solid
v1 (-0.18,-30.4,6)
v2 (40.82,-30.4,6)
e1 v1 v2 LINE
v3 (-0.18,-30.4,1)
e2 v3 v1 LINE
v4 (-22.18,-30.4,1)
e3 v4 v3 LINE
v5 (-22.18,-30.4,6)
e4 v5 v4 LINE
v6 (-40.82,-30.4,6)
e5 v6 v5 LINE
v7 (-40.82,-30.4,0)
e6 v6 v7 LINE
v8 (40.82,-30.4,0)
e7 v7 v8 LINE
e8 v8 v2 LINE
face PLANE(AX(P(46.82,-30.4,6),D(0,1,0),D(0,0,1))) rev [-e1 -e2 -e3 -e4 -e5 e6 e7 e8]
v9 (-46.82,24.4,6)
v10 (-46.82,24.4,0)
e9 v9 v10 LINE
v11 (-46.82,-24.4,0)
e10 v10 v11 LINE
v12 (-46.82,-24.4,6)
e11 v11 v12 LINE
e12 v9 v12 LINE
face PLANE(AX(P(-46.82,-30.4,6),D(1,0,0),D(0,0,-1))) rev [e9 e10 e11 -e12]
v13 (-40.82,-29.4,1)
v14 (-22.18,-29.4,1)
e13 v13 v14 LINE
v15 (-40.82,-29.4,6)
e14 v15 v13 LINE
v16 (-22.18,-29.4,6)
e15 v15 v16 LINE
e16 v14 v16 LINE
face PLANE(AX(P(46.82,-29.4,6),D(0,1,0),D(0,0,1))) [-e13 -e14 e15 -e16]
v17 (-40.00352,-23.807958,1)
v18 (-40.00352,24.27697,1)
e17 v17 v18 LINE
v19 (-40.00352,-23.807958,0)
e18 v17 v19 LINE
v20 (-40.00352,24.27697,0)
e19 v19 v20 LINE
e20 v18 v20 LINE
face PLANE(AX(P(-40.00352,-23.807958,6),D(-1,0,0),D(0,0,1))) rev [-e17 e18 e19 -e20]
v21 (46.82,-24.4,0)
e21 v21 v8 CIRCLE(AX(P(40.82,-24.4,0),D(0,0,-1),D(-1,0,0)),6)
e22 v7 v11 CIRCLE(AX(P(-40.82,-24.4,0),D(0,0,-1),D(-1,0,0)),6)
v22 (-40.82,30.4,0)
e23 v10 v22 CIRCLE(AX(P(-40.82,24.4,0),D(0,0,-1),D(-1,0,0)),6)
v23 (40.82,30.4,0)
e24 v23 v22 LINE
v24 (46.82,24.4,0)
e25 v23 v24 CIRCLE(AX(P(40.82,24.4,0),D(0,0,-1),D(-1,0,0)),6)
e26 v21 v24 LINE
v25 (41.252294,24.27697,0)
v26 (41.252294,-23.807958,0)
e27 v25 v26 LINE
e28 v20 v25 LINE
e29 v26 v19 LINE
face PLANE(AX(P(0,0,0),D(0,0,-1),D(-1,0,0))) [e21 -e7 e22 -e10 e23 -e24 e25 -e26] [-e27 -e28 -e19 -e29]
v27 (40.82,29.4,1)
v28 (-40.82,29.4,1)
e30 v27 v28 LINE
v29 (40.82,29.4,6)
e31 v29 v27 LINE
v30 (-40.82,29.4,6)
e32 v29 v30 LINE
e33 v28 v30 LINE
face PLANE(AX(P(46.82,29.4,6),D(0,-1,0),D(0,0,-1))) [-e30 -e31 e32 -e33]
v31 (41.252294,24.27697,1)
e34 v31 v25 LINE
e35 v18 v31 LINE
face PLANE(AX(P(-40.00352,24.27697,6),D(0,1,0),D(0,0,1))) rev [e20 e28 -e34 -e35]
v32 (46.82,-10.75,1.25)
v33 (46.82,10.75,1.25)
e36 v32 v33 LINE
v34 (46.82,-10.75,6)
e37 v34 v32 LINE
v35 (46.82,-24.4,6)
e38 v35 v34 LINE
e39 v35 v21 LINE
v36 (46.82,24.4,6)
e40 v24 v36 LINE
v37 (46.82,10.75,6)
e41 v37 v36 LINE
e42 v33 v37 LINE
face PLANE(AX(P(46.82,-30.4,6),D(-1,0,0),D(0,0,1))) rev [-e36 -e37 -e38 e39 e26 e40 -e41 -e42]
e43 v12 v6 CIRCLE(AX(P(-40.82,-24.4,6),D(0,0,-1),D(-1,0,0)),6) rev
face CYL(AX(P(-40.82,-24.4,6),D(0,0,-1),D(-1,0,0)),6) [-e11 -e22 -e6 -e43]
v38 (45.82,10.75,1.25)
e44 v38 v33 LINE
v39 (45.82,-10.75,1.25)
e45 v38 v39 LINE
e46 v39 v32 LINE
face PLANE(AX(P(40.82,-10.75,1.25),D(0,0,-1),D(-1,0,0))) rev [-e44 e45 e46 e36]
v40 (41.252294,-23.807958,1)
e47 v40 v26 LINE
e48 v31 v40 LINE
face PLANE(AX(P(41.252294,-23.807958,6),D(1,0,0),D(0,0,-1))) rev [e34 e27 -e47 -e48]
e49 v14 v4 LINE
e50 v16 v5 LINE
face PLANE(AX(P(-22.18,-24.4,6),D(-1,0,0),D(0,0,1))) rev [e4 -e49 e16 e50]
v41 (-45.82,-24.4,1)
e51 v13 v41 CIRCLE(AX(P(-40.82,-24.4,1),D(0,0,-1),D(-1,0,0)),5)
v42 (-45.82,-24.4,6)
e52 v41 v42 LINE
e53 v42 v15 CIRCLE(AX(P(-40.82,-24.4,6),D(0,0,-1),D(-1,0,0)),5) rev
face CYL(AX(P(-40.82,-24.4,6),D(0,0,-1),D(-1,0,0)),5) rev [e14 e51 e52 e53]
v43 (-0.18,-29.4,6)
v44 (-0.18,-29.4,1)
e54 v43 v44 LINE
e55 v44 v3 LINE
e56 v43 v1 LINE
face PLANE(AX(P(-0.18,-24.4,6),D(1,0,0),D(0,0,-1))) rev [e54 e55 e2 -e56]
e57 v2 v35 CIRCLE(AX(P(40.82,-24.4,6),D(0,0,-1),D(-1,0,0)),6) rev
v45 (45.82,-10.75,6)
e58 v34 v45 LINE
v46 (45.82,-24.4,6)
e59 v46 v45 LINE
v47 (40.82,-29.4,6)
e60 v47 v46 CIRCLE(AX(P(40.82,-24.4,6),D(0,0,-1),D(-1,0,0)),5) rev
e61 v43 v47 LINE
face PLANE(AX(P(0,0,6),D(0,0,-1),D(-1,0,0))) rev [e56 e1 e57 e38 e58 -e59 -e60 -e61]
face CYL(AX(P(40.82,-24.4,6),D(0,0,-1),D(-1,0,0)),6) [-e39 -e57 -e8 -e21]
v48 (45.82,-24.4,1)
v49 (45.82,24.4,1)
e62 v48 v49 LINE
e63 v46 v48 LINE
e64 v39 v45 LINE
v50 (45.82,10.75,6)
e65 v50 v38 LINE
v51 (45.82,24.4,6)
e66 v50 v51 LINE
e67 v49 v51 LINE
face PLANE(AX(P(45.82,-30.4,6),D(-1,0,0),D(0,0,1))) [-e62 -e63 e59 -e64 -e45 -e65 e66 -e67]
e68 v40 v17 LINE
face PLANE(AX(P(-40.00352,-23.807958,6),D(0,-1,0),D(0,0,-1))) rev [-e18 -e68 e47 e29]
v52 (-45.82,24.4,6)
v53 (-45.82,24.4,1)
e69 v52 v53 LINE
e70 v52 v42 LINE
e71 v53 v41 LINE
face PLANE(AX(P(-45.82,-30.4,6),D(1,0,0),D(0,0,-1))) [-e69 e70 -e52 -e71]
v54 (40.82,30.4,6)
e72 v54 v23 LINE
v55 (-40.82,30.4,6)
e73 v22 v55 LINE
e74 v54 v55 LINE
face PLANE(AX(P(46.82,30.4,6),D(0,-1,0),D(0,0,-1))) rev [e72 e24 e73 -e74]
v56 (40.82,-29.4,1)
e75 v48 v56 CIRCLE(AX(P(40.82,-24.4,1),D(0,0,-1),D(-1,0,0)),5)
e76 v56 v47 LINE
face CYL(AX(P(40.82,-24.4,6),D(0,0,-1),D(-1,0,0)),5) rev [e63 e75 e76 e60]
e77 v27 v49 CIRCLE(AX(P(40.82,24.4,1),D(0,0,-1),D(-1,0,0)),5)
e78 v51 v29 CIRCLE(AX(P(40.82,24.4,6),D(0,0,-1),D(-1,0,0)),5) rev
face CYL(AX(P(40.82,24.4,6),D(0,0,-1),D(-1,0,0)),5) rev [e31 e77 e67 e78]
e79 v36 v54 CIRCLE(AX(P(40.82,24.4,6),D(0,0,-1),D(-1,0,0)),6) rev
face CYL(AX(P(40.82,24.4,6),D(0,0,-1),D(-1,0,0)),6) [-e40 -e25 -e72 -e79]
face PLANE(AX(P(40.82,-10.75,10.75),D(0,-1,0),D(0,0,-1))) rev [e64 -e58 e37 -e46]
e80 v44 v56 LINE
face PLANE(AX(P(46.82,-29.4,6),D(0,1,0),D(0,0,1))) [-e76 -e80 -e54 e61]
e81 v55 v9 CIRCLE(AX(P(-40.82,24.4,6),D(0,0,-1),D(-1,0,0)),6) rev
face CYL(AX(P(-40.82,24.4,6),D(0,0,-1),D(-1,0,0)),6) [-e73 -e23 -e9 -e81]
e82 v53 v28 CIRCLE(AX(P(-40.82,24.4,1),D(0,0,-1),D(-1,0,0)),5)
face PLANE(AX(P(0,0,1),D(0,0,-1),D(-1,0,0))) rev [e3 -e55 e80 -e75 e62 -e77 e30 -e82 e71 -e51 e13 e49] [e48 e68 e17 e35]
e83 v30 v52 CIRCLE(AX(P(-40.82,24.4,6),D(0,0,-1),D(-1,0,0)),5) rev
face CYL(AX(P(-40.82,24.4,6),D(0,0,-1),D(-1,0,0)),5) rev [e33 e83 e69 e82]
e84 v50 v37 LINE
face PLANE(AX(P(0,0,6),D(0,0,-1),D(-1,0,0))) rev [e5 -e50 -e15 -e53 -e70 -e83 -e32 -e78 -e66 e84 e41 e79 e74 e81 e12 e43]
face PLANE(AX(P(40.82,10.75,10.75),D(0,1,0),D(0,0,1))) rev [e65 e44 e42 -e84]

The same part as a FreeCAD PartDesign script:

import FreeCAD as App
import Part
import Sketcher

V = App.Vector
Q = App.Units.Quantity


def edges_at(feature, points):
    """Names of the edges that pass closest to the given points."""
    edges = feature.Shape.Edges
    near = lambda p: min(range(len(edges)), key=lambda i: edges[i].distToShape(Part.Vertex(*p))[0])
    return sorted({f"Edge{near(p) + 1}" for p in points})


def faces_at(feature, points):
    """Names of the faces that lie closest to the given points."""
    faces = feature.Shape.Faces
    near = lambda p: min(range(len(faces)), key=lambda i: faces[i].distToShape(Part.Vertex(*p))[0])
    return sorted({f"Face{near(p) + 1}" for p in points})

doc = App.newDocument("Part")
params = doc.addObject("Spreadsheet::Sheet", "Params")
for row, (alias, value) in enumerate([
    ("sketch1_height", "60.8 mm"),
    ("sketch1_width", "93.64 mm"),
    ("pad1_length", "6 mm"),
    ("fillet_radius", "6 mm"),
    ("thickness_wall", "1 mm"),
    ("sketch2_width", "21.5 mm"),
    ("sketch2_height", "9.5 mm"),
    ("pocket1_length", "6 mm"),
    ("sketch3_width", "22 mm"),
    ("sketch3_height", "5 mm"),
    ("pocket2_length", "6 mm"),
    ("pocket3_length", "6 mm"),
], start=1):
    params.set(f"A{row}", alias)
    params.set(f"B{row}", "=" + value)
    params.setAlias(f"B{row}", alias)

body = doc.addObject("PartDesign::Body", "Body")

# Sketch on XY plane
sketch1 = body.newObject("Sketcher::SketchObject", "Sketch")
sketch1.AttachmentSupport = (doc.getObject("XY_Plane"), [""])
sketch1.MapMode = "FlatFace"
sketch1.addGeometry([
    Part.LineSegment(V(-46.82, -30.4, 0), V(46.82, -30.4, 0)),
    Part.LineSegment(V(46.82, -30.4, 0), V(46.82, 30.4, 0)),
    Part.LineSegment(V(46.82, 30.4, 0), V(-46.82, 30.4, 0)),
    Part.LineSegment(V(-46.82, 30.4, 0), V(-46.82, -30.4, 0)),
], False)
sketch1.addConstraint([
    Sketcher.Constraint("Coincident", 0, 2, 1, 1),
    Sketcher.Constraint("Coincident", 1, 2, 2, 1),
    Sketcher.Constraint("Coincident", 2, 2, 3, 1),
    Sketcher.Constraint("Coincident", 3, 2, 0, 1),
    Sketcher.Constraint("Horizontal", 0),
    Sketcher.Constraint("Vertical", 1),
    Sketcher.Constraint("Horizontal", 2),
    Sketcher.Constraint("Vertical", 3),
    Sketcher.Constraint("Symmetric", 0, 2, 2, 2, -1, 1),
    Sketcher.Constraint("DistanceY", 1, 1, 1, 2, Q("60.8 mm")),
    Sketcher.Constraint("DistanceX", 0, 1, 0, 2, Q("93.64 mm")),
])
sketch1.setExpression("Constraints[9]", "Params.sketch1_height")
sketch1.setExpression("Constraints[10]", "Params.sketch1_width")
pad1 = body.newObject("PartDesign::Pad", "Pad")
pad1.Profile = sketch1
pad1.setExpression("Length", "Params.pad1_length")
doc.recompute()

fillet = body.newObject("PartDesign::Fillet", "Fillet")
fillet.Base = (pad1, edges_at(pad1, [
    (46.82, 30.4, 3),
    (46.82, -30.4, 3),
    (-46.82, -30.4, 3),
    (-46.82, 30.4, 3),
]))
fillet.setExpression("Radius", "Params.fillet_radius")
doc.recompute()

thickness = body.newObject("PartDesign::Thickness", "Thickness")
thickness.Base = (fillet, faces_at(fillet, [(0, 0, 6)]))
thickness.setExpression("Value", "Params.thickness_wall")
thickness.Reversed = True
thickness.Join = "Intersection"

# Sketch on YZ plane
sketch2 = body.newObject("Sketcher::SketchObject", "Sketch001")
sketch2.AttachmentSupport = (doc.getObject("YZ_Plane"), [""])
sketch2.MapMode = "FlatFace"
sketch2.AttachmentOffset = App.Placement(V(0, 0, 46.82), App.Rotation())
sketch2.addGeometry([
    Part.LineSegment(V(-10.75, 10.75, 0), V(-10.75, 1.25, 0)),
    Part.LineSegment(V(-10.75, 1.25, 0), V(10.75, 1.25, 0)),
    Part.LineSegment(V(10.75, 1.25, 0), V(10.75, 10.75, 0)),
    Part.LineSegment(V(10.75, 10.75, 0), V(-10.75, 10.75, 0)),
], False)
sketch2.addConstraint([
    Sketcher.Constraint("Coincident", 0, 2, 1, 1),
    Sketcher.Constraint("Coincident", 1, 2, 2, 1),
    Sketcher.Constraint("Coincident", 2, 2, 3, 1),
    Sketcher.Constraint("Coincident", 3, 2, 0, 1),
    Sketcher.Constraint("Vertical", 0),
    Sketcher.Constraint("Horizontal", 1),
    Sketcher.Constraint("Vertical", 2),
    Sketcher.Constraint("Horizontal", 3),
    Sketcher.Constraint("DistanceX", 1, 1, 1, 2, Q("21.5 mm")),
    Sketcher.Constraint("DistanceY", 0, 2, 0, 1, Q("9.5 mm")),
    Sketcher.Constraint("DistanceX", 0, 2, -1, 1, Q("10.75 mm")),
    Sketcher.Constraint("DistanceY", -1, 1, 0, 2, Q("1.25 mm")),
])
sketch2.setExpression("Constraints[8]", "Params.sketch2_width")
sketch2.setExpression("Constraints[9]", "Params.sketch2_height")
pocket1 = body.newObject("PartDesign::Pocket", "Pocket")
pocket1.Profile = sketch2
pocket1.setExpression("Length", "Params.pocket1_length")

# Sketch on XZ plane
sketch3 = body.newObject("Sketcher::SketchObject", "Sketch002")
sketch3.AttachmentSupport = (doc.getObject("XZ_Plane"), [""])
sketch3.MapMode = "FlatFace"
sketch3.AttachmentOffset = App.Placement(V(0, 0, 30.4), App.Rotation())
sketch3.addGeometry([
    Part.LineSegment(V(-22.18, 6, 0), V(-22.18, 1, 0)),
    Part.LineSegment(V(-22.18, 1, 0), V(-0.18, 1, 0)),
    Part.LineSegment(V(-0.18, 1, 0), V(-0.18, 6, 0)),
    Part.LineSegment(V(-0.18, 6, 0), V(-22.18, 6, 0)),
], False)
sketch3.addConstraint([
    Sketcher.Constraint("Coincident", 0, 2, 1, 1),
    Sketcher.Constraint("Coincident", 1, 2, 2, 1),
    Sketcher.Constraint("Coincident", 2, 2, 3, 1),
    Sketcher.Constraint("Coincident", 3, 2, 0, 1),
    Sketcher.Constraint("Vertical", 0),
    Sketcher.Constraint("Horizontal", 1),
    Sketcher.Constraint("Vertical", 2),
    Sketcher.Constraint("Horizontal", 3),
    Sketcher.Constraint("DistanceX", 1, 1, 1, 2, Q("22 mm")),
    Sketcher.Constraint("DistanceY", 0, 2, 0, 1, Q("5 mm")),
    Sketcher.Constraint("DistanceY", -1, 1, 0, 2, Q("1 mm")),
    Sketcher.Constraint("DistanceX", 0, 2, -1, 1, Q("22.18 mm")),
])
sketch3.setExpression("Constraints[8]", "Params.sketch3_width")
sketch3.setExpression("Constraints[9]", "Params.sketch3_height")
pocket2 = body.newObject("PartDesign::Pocket", "Pocket001")
pocket2.Profile = sketch3
pocket2.setExpression("Length", "Params.pocket2_length")

# Sketch on XY plane
sketch4 = body.newObject("Sketcher::SketchObject", "Sketch003")
sketch4.AttachmentSupport = (doc.getObject("XY_Plane"), [""])
sketch4.MapMode = "FlatFace"
sketch4.addGeometry([
    Part.LineSegment(V(-40.00352, -23.807958, 0), V(-40.00352, 24.27697, 0)),
    Part.LineSegment(V(-40.00352, 24.27697, 0), V(41.252294, 24.27697, 0)),
    Part.LineSegment(V(41.252294, 24.27697, 0), V(41.252294, -23.807958, 0)),
    Part.LineSegment(V(41.252294, -23.807958, 0), V(-40.00352, -23.807958, 0)),
], False)
sketch4.addConstraint([
    Sketcher.Constraint("Coincident", 0, 2, 1, 1),
    Sketcher.Constraint("Coincident", 1, 2, 2, 1),
    Sketcher.Constraint("Coincident", 2, 2, 3, 1),
    Sketcher.Constraint("Coincident", 3, 2, 0, 1),
    Sketcher.Constraint("Vertical", 0),
    Sketcher.Constraint("Horizontal", 1),
    Sketcher.Constraint("Vertical", 2),
    Sketcher.Constraint("Horizontal", 3),
    Sketcher.Constraint("DistanceY", 0, 1, 0, 2, Q("48.084928 mm")),
    Sketcher.Constraint("DistanceX", 1, 1, 1, 2, Q("81.255814 mm")),
    Sketcher.Constraint("DistanceX", 0, 2, -1, 1, Q("40.00352 mm")),
    Sketcher.Constraint("DistanceY", -1, 1, 0, 2, Q("24.27697 mm")),
])
pocket3 = body.newObject("PartDesign::Pocket", "Pocket002")
pocket3.Profile = sketch4
pocket3.setExpression("Length", "Params.pocket3_length")
pocket3.Reversed = True

doc.recompute()
